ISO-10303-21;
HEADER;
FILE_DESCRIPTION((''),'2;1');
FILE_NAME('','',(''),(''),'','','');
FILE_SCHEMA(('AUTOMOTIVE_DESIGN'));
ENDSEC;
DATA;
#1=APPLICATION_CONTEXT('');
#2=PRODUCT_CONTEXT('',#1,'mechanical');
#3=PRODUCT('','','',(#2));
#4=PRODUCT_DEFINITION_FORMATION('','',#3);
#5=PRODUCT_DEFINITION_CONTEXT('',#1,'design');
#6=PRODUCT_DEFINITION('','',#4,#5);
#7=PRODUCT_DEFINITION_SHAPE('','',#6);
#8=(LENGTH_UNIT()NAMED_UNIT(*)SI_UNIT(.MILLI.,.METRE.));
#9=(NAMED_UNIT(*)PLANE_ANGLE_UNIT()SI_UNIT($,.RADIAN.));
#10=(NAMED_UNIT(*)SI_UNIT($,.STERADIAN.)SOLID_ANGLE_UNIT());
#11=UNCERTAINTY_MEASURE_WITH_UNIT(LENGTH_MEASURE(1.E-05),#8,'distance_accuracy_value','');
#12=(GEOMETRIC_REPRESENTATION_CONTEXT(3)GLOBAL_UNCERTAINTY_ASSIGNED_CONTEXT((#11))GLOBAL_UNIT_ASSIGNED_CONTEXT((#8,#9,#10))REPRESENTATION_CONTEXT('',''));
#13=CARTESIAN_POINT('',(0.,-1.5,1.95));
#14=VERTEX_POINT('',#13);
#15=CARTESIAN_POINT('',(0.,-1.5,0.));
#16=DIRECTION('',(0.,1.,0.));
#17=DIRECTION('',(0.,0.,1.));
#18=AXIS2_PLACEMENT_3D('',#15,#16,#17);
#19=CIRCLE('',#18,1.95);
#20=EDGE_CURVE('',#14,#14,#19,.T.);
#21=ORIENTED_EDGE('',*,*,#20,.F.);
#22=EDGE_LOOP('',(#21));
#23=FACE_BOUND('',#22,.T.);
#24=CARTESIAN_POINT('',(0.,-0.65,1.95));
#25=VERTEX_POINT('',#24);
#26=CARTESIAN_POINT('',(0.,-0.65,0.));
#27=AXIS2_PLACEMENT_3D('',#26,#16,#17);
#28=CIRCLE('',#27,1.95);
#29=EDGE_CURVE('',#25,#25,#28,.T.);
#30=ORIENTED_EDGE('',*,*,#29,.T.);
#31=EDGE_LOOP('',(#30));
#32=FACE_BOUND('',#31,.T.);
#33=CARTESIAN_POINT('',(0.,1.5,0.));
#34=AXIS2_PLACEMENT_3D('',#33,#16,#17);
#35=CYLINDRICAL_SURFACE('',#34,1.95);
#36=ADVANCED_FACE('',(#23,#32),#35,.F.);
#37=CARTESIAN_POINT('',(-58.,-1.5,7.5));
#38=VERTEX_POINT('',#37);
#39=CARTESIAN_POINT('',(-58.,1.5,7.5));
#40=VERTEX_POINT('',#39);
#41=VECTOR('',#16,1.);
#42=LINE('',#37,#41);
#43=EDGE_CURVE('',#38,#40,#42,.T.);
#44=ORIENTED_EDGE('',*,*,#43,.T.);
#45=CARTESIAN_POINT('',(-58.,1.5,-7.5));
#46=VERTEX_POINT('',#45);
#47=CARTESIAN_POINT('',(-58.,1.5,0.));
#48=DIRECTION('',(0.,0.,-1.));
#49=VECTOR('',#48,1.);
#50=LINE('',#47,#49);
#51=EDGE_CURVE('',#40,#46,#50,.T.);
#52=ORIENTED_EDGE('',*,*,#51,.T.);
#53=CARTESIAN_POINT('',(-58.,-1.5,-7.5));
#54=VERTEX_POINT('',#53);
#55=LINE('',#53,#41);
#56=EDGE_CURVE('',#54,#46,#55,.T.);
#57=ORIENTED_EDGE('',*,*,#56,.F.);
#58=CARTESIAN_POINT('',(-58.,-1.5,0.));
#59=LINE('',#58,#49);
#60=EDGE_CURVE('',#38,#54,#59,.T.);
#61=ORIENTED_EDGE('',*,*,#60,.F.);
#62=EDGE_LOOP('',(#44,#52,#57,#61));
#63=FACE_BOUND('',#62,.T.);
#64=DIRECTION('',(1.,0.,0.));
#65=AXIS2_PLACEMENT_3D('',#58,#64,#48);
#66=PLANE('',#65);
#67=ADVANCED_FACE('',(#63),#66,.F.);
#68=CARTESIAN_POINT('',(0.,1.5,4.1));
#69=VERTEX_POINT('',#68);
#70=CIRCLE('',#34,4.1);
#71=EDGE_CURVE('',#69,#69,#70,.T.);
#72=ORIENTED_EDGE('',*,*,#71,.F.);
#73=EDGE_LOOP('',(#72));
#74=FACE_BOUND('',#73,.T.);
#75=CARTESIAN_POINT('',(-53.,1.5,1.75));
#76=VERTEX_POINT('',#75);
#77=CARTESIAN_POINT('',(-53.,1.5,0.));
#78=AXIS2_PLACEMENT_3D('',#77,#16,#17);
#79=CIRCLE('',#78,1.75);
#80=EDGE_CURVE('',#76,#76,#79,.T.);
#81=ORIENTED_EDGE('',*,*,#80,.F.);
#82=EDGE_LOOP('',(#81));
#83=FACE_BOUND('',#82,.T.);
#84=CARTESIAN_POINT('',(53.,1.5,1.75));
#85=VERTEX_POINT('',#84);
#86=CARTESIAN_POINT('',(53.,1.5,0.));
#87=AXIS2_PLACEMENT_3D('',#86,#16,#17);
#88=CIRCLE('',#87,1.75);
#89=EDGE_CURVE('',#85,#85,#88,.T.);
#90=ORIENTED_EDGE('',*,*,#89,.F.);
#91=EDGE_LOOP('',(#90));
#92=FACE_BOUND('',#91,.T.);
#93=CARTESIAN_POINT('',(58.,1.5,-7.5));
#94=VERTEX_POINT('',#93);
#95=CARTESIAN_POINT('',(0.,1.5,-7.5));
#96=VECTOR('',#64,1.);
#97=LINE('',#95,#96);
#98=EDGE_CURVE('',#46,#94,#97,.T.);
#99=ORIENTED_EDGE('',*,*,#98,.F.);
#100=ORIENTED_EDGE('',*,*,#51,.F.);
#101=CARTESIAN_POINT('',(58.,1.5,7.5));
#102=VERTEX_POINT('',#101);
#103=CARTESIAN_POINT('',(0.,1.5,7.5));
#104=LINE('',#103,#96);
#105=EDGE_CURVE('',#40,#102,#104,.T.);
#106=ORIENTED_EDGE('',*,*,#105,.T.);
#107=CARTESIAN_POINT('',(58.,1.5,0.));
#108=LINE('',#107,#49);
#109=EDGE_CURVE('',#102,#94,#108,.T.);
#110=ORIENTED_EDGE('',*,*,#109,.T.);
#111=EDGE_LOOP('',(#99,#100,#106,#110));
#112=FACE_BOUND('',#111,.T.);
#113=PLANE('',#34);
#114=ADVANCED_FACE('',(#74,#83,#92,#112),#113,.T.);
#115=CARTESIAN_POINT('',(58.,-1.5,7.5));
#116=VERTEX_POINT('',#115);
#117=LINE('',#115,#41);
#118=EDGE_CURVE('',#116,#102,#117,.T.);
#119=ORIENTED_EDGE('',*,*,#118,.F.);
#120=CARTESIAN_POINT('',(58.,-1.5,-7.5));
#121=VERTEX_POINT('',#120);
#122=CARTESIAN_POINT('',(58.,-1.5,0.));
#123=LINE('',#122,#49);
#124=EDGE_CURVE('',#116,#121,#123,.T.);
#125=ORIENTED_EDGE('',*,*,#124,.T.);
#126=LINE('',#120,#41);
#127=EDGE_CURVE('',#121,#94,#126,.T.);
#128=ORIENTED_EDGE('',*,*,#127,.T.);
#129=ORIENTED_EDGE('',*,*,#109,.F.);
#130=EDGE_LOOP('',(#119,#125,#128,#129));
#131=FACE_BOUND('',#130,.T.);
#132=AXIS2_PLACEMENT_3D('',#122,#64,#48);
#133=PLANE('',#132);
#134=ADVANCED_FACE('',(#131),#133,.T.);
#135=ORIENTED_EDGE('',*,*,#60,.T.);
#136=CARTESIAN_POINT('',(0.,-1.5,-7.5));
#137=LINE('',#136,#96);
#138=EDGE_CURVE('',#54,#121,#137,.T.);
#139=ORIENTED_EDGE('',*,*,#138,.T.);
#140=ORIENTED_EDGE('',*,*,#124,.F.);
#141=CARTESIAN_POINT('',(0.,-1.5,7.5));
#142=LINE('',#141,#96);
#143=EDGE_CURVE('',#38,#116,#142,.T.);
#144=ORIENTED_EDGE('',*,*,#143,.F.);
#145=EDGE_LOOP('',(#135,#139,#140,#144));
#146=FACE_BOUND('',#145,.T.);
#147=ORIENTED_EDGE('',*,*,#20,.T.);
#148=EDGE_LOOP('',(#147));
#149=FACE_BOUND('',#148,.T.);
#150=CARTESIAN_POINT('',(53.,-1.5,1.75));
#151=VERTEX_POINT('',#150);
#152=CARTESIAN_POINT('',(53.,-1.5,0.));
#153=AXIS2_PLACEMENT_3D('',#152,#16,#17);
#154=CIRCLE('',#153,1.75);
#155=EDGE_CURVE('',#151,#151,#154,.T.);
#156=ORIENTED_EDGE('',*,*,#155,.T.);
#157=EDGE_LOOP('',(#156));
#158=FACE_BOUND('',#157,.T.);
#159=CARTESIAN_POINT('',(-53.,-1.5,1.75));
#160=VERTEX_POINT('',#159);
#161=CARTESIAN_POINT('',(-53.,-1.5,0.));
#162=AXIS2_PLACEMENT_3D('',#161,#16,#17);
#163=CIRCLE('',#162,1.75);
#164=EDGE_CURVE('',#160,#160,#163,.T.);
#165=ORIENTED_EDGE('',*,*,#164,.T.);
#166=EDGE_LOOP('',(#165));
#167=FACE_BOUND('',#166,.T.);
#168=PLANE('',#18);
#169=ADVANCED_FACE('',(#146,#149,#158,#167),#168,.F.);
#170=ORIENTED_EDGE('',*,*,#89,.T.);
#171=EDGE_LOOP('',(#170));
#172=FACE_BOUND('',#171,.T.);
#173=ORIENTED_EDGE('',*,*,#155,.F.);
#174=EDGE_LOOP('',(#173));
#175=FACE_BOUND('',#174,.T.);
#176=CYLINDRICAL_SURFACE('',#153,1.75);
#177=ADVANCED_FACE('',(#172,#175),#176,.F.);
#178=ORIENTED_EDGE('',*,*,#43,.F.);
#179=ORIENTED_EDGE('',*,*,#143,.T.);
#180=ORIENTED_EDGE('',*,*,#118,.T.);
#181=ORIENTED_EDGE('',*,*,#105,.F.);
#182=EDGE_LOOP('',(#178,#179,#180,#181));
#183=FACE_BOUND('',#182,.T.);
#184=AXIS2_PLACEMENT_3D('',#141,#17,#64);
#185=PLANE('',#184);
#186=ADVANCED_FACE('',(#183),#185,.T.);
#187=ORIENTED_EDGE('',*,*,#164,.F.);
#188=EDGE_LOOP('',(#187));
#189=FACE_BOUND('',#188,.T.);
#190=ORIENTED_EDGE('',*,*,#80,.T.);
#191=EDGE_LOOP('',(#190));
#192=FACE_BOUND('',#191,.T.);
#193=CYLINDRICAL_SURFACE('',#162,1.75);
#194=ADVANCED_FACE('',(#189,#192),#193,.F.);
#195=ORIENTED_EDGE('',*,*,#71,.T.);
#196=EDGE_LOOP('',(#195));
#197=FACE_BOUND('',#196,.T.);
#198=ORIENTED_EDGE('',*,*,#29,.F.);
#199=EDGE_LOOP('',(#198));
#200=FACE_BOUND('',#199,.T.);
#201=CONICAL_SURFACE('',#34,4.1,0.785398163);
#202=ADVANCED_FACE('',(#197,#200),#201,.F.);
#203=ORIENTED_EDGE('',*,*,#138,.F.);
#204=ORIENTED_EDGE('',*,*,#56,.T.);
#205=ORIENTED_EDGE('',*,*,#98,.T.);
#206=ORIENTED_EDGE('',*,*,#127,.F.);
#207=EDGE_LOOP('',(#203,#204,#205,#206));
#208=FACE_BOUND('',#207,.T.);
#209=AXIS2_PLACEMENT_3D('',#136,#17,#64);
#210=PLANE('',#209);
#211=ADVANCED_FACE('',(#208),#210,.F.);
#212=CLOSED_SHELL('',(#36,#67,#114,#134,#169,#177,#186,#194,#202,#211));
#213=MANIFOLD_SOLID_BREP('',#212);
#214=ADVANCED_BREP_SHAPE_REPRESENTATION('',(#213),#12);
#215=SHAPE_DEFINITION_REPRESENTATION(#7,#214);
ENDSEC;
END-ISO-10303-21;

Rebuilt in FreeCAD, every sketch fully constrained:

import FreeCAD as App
import Part
import Sketcher
Q = App.Units.Quantity

doc = App.newDocument("Part")
body = doc.addObject("PartDesign::Body", "Body")

sketch1 = doc.addObject("Sketcher::SketchObject", "Sketch")
body.addObject(sketch1)
sketch1.AttachmentSupport = (doc.XZ_Plane, [""])
sketch1.MapMode = "FlatFace"
sketch1.addGeometry(Part.LineSegment(App.Vector(-58, -7.5, 0), App.Vector(-58, 7.5, 0)), False)
sketch1.addGeometry(Part.LineSegment(App.Vector(-58, 7.5, 0), App.Vector(58, 7.5, 0)), False)
sketch1.addGeometry(Part.LineSegment(App.Vector(58, 7.5, 0), App.Vector(58, -7.5, 0)), False)
sketch1.addGeometry(Part.LineSegment(App.Vector(58, -7.5, 0), App.Vector(-58, -7.5, 0)), False)
sketch1.addGeometry(Part.Circle(App.Vector(-53, 0, 0), App.Vector(0, 0, 1), 1.8), False)
sketch1.addGeometry(Part.Circle(App.Vector(0, 0, 0), App.Vector(0, 0, 1), 1.8), False)
sketch1.addGeometry(Part.Circle(App.Vector(53, 0, 0), App.Vector(0, 0, 1), 1.8), False)
sketch1.addConstraint(Sketcher.Constraint("Coincident", 0, 2, 1, 1))
sketch1.addConstraint(Sketcher.Constraint("Coincident", 1, 2, 2, 1))
sketch1.addConstraint(Sketcher.Constraint("Coincident", 2, 2, 3, 1))
sketch1.addConstraint(Sketcher.Constraint("Coincident", 3, 2, 0, 1))
sketch1.addConstraint(Sketcher.Constraint("Vertical", 0))
sketch1.addConstraint(Sketcher.Constraint("Horizontal", 1))
sketch1.addConstraint(Sketcher.Constraint("Vertical", 2))
sketch1.addConstraint(Sketcher.Constraint("Horizontal", 3))
sketch1.addConstraint(Sketcher.Constraint("Coincident", 5, 3, -1, 1))
sketch1.addConstraint(Sketcher.Constraint("Equal", 4, 5))
sketch1.addConstraint(Sketcher.Constraint("Equal", 5, 6))
sketch1.addConstraint(Sketcher.Constraint("Symmetric", 4, 3, 6, 3, -1, 1))
sketch1.addConstraint(Sketcher.Constraint("Symmetric", 0, 2, 2, 2, -1, 1))
sketch1.addConstraint(Sketcher.Constraint("PointOnObject", 4, 3, -1))
sketch1.addConstraint(Sketcher.Constraint("Diameter", 4, 3.5))
sketch1.addConstraint(Sketcher.Constraint("DistanceX", 1, 1, 1, 2, 116.0))
sketch1.addConstraint(Sketcher.Constraint("DistanceY", 0, 1, 0, 2, 15.0))
sketch1.addConstraint(Sketcher.Constraint("DistanceX", 4, 3, -1, 1, 53.0))
pad1 = doc.addObject("PartDesign::Pad", "Pad")
body.addObject(pad1)
pad1.Profile = sketch1
pad1.Type = "TwoLengths"
pad1.Length = 1.5
pad1.Length2 = 1.5
pad1.Reversed = True

sketch2 = doc.addObject("Sketcher::SketchObject", "Sketch001")
body.addObject(sketch2)
sketch2.AttachmentSupport = (doc.YZ_Plane, [""])
sketch2.MapMode = "FlatFace"
sketch2.addGeometry(Part.LineSegment(App.Vector(-1.5, 0, 0), App.Vector(1.5, 0, 0)), False)
sketch2.addGeometry(Part.LineSegment(App.Vector(1.5, 0, 0), App.Vector(1.5, 4.1, 0)), False)
sketch2.addGeometry(Part.LineSegment(App.Vector(1.5, 4.1, 0), App.Vector(-0.7, 1.9, 0)), False)
sketch2.addGeometry(Part.LineSegment(App.Vector(-0.7, 1.9, 0), App.Vector(-1.5, 1.9, 0)), False)
sketch2.addGeometry(Part.LineSegment(App.Vector(-1.5, 1.9, 0), App.Vector(-1.5, 0, 0)), False)
sketch2.addConstraint(Sketcher.Constraint("Coincident", 0, 2, 1, 1))
sketch2.addConstraint(Sketcher.Constraint("Coincident", 1, 2, 2, 1))
sketch2.addConstraint(Sketcher.Constraint("Coincident", 2, 2, 3, 1))
sketch2.addConstraint(Sketcher.Constraint("Coincident", 3, 2, 4, 1))
sketch2.addConstraint(Sketcher.Constraint("Coincident", 4, 2, 0, 1))
sketch2.addConstraint(Sketcher.Constraint("Horizontal", 0))
sketch2.addConstraint(Sketcher.Constraint("Vertical", 1))
sketch2.addConstraint(Sketcher.Constraint("Horizontal", 3))
sketch2.addConstraint(Sketcher.Constraint("Vertical", 4))
sketch2.addConstraint(Sketcher.Constraint("Symmetric", 0, 2, 4, 2, -1, 1))
sketch2.addConstraint(Sketcher.Constraint("DistanceX", 0, 1, 0, 2, 3.0))
sketch2.addConstraint(Sketcher.Constraint("Angle", 2, Q("-135 deg")))
sketch2.addConstraint(Sketcher.Constraint("DistanceY", 1, 1, 1, 2, 4.1))
sketch2.addConstraint(Sketcher.Constraint("DistanceX", 3, 2, 3, 1, 0.85))
groove = doc.addObject("PartDesign::Groove", "Groove")
body.addObject(groove)
groove.Profile = sketch2
groove.ReferenceAxis = (sketch2, ["H_Axis"])
groove.Angle = 360

doc.recompute()
